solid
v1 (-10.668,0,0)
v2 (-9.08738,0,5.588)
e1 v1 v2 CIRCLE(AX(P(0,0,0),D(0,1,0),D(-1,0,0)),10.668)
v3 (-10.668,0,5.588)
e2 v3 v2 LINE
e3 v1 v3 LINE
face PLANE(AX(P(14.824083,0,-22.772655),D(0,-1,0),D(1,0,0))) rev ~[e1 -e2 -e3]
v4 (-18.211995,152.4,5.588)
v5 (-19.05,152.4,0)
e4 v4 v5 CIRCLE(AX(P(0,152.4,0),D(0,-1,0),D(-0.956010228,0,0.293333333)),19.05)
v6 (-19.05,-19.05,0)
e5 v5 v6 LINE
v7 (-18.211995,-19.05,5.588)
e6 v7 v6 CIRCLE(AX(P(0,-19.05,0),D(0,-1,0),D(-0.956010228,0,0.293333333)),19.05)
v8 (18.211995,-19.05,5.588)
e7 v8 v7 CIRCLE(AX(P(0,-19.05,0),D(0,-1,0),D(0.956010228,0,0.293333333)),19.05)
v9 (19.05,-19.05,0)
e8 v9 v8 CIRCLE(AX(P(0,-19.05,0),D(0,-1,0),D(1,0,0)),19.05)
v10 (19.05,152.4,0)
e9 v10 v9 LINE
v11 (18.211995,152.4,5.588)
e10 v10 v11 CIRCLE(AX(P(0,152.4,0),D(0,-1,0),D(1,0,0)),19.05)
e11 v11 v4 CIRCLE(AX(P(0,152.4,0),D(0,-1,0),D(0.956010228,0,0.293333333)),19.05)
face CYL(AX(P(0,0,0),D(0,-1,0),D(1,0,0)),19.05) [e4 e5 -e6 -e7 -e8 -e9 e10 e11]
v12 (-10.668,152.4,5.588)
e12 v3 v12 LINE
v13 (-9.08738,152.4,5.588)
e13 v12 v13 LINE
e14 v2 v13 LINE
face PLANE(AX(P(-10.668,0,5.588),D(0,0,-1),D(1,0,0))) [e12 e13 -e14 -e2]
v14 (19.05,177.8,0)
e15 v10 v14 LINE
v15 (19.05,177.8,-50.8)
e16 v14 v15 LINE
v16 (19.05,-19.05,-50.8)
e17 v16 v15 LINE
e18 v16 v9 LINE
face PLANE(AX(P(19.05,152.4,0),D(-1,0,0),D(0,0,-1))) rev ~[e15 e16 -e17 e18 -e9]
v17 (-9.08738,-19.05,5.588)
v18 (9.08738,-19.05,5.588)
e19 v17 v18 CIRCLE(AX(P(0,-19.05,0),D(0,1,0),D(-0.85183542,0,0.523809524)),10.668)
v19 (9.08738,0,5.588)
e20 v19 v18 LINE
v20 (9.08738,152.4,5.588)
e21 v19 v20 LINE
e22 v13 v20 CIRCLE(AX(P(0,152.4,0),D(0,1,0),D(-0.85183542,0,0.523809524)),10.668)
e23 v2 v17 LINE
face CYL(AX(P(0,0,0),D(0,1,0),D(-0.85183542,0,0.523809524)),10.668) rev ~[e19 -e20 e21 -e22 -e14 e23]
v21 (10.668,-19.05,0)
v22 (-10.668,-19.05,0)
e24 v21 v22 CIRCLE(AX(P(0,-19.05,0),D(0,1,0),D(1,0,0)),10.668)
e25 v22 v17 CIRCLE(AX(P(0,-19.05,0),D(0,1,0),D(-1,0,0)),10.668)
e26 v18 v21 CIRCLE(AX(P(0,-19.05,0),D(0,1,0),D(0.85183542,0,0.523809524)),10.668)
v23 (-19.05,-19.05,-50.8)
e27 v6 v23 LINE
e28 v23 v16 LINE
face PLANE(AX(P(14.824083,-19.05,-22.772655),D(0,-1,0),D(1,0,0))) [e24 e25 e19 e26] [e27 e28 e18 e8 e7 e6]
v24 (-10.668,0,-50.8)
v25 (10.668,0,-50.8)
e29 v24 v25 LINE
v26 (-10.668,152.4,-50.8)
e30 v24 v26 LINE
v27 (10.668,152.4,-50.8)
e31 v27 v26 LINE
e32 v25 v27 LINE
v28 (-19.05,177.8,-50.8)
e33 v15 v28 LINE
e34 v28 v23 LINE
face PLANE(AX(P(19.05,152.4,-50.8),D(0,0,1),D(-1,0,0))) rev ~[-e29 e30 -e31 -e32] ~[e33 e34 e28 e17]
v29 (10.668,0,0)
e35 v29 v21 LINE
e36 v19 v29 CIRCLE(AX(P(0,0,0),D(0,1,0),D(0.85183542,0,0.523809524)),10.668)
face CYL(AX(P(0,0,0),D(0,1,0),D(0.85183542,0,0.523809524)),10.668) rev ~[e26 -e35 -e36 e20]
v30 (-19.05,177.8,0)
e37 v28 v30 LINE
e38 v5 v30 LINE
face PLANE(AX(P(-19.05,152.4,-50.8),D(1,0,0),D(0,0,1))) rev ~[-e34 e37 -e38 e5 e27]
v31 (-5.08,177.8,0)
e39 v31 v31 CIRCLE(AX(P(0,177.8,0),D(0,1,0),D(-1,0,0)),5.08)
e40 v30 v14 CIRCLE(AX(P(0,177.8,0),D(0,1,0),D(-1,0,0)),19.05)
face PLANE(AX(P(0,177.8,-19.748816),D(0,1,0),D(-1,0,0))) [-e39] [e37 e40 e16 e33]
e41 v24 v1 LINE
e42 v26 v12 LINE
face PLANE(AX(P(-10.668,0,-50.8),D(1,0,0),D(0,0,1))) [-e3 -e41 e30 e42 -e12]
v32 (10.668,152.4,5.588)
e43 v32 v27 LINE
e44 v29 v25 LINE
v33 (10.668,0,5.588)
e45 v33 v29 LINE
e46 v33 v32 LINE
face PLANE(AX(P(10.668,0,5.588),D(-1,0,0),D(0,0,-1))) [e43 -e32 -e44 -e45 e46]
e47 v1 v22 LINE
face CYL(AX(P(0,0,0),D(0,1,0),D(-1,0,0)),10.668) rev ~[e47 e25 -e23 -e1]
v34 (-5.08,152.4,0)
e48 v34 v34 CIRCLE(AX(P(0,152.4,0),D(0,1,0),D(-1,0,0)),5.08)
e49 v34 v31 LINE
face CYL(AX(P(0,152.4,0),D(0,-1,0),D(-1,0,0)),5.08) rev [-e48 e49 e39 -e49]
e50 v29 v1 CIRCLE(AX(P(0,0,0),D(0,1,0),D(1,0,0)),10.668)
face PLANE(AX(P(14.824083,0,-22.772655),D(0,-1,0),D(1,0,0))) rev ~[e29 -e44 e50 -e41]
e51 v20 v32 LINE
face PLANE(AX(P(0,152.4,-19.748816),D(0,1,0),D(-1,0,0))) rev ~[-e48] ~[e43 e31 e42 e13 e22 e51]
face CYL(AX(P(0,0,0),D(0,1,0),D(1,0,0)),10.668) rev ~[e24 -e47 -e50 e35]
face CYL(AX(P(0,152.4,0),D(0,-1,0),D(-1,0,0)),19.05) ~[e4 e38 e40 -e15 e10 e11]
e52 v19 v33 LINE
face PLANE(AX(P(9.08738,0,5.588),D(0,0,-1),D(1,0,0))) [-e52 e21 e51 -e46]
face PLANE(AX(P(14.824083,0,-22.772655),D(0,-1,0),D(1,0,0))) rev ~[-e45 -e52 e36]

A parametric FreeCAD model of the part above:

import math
import FreeCAD as App
import Part
import Sketcher
Q = App.Units.Quantity

doc = App.newDocument("Part")
body = doc.addObject("PartDesign::Body", "Body")

sketch1 = body.newObject("Sketcher::SketchObject", "Sketch")
sketch1.AttachmentSupport = (doc.getObject("XZ_Plane"), [""])
sketch1.MapMode = "FlatFace"
sketch1.addGeometry(Part.LineSegment(App.Vector(19, -51, 0), App.Vector(19, 0, 0)), False)
sketch1.addGeometry(Part.ArcOfCircle(Part.Circle(App.Vector(0, 0, 0), App.Vector(0, 0, 1), 19), math.radians(0), math.radians(17.06)), False)
sketch1.addGeometry(Part.ArcOfCircle(Part.Circle(App.Vector(0, 0, 0), App.Vector(0, 0, 1), 19), math.radians(17), math.radians(163)), False)
sketch1.addGeometry(Part.ArcOfCircle(Part.Circle(App.Vector(0, 0, 0), App.Vector(0, 0, 1), 19), math.radians(162.94), math.radians(180)), False)
sketch1.addGeometry(Part.LineSegment(App.Vector(-19, 0, 0), App.Vector(-19, -51, 0)), False)
sketch1.addGeometry(Part.LineSegment(App.Vector(-19, -51, 0), App.Vector(19, -51, 0)), False)
sketch1.addGeometry(Part.ArcOfCircle(Part.Circle(App.Vector(0, 0, 0), App.Vector(0, 0, 1), 11), math.radians(32), math.radians(148)), False)
sketch1.addGeometry(Part.ArcOfCircle(Part.Circle(App.Vector(0, 0, 0), App.Vector(0, 0, 1), 11), math.radians(0), math.radians(32)), False)
sketch1.addGeometry(Part.ArcOfCircle(Part.Circle(App.Vector(0, 0, 0), App.Vector(0, 0, 1), 11), math.radians(180), math.radians(360)), False)
sketch1.addGeometry(Part.ArcOfCircle(Part.Circle(App.Vector(0, 0, 0), App.Vector(0, 0, 1), 11), math.radians(148), math.radians(180)), False)
sketch1.addConstraint(Sketcher.Constraint("Tangent", 0, 2, 1, 1))
sketch1.addConstraint(Sketcher.Constraint("Tangent", 1, 2, 2, 1))
sketch1.addConstraint(Sketcher.Constraint("Tangent", 2, 2, 3, 1))
sketch1.addConstraint(Sketcher.Constraint("Tangent", 3, 2, 4, 1))
sketch1.addConstraint(Sketcher.Constraint("Coincident", 4, 2, 5, 1))
sketch1.addConstraint(Sketcher.Constraint("Coincident", 5, 2, 0, 1))
sketch1.addConstraint(Sketcher.Constraint("Tangent", 6, 1, 7, 2))
sketch1.addConstraint(Sketcher.Constraint("Tangent", 7, 1, 8, 2))
sketch1.addConstraint(Sketcher.Constraint("Tangent", 8, 1, 9, 2))
sketch1.addConstraint(Sketcher.Constraint("Tangent", 9, 1, 6, 2))
sketch1.addConstraint(Sketcher.Constraint("Vertical", 0))
sketch1.addConstraint(Sketcher.Constraint("Vertical", 4))
sketch1.addConstraint(Sketcher.Constraint("Horizontal", 5))
sketch1.addConstraint(Sketcher.Constraint("Coincident", 1, 3, -1, 1))
sketch1.addConstraint(Sketcher.Constraint("Coincident", 3, 3, -1, 1))
sketch1.addConstraint(Sketcher.Constraint("Coincident", 6, 3, -1, 1))
sketch1.addConstraint(Sketcher.Constraint("Equal", 6, 7))
sketch1.addConstraint(Sketcher.Constraint("PointOnObject", 7, 1, -1))
sketch1.addConstraint(Sketcher.Constraint("PointOnObject", 8, 1, -1))
sketch1.addConstraint(Sketcher.Constraint("Horizontal", 1, 2, 2, 2))
sketch1.addConstraint(Sketcher.Constraint("Horizontal", 2, 2, 6, 1))
sketch1.addConstraint(Sketcher.Constraint("Horizontal", 6, 1, 9, 1))
sketch1.addConstraint(Sketcher.Constraint("DistanceY", 0, 1, 0, 2, Q("2 in")))
sketch1.addConstraint(Sketcher.Constraint("Radius", 1, Q("0.75 in")))
sketch1.addConstraint(Sketcher.Constraint("Radius", 6, Q("0.42 in")))
sketch1.addConstraint(Sketcher.Constraint("DistanceY", -1, 1, 1, 2, Q("0.22 in")))
pad1 = body.newObject("PartDesign::Pad", "Pad")
pad1.Profile = sketch1
pad1.Length = Q("0.75 in")

sketch2 = body.newObject("Sketcher::SketchObject", "Sketch001")
sketch2.AttachmentSupport = (doc.getObject("XZ_Plane"), [""])
sketch2.MapMode = "FlatFace"
sketch2.addGeometry(Part.LineSegment(App.Vector(19.1, -50.8, 0), App.Vector(19.1, 0, 0)), False)
sketch2.addGeometry(Part.ArcOfCircle(Part.Circle(App.Vector(0, 0, 0), App.Vector(0, 0, 1), 19), math.radians(0), math.radians(17.06)), False)
sketch2.addGeometry(Part.ArcOfCircle(Part.Circle(App.Vector(0, 0, 0), App.Vector(0, 0, 1), 19.1), math.radians(17), math.radians(163)), False)
sketch2.addGeometry(Part.ArcOfCircle(Part.Circle(App.Vector(0, 0, 0), App.Vector(0, 0, 1), 19), math.radians(162.94), math.radians(180)), False)
sketch2.addGeometry(Part.LineSegment(App.Vector(-19.1, 0, 0), App.Vector(-19.1, -50.8, 0)), False)
sketch2.addGeometry(Part.LineSegment(App.Vector(-19.1, -50.8, 0), App.Vector(-10.7, -50.8, 0)), False)
sketch2.addGeometry(Part.LineSegment(App.Vector(-10.7, -50.8, 0), App.Vector(-10.7, 5.6, 0)), False)
sketch2.addGeometry(Part.LineSegment(App.Vector(-10.7, 5.6, 0), App.Vector(-9.1, 5.6, 0)), False)
sketch2.addGeometry(Part.ArcOfCircle(Part.Circle(App.Vector(0, 0, 0), App.Vector(0, 0, 1), 10.7), math.radians(32), math.radians(148)), False)
sketch2.addGeometry(Part.LineSegment(App.Vector(9.1, 5.6, 0), App.Vector(10.7, 5.6, 0)), False)
sketch2.addGeometry(Part.LineSegment(App.Vector(10.7, 5.6, 0), App.Vector(10.7, -50.8, 0)), False)
sketch2.addGeometry(Part.LineSegment(App.Vector(10.7, -50.8, 0), App.Vector(19.1, -50.8, 0)), False)
sketch2.addConstraint(Sketcher.Constraint("Tangent", 0, 2, 1, 1))
sketch2.addConstraint(Sketcher.Constraint("Tangent", 1, 2, 2, 1))
sketch2.addConstraint(Sketcher.Constraint("Tangent", 2, 2, 3, 1))
sketch2.addConstraint(Sketcher.Constraint("Tangent", 3, 2, 4, 1))
sketch2.addConstraint(Sketcher.Constraint("Coincident", 4, 2, 5, 1))
sketch2.addConstraint(Sketcher.Constraint("Coincident", 5, 2, 6, 1))
sketch2.addConstraint(Sketcher.Constraint("Coincident", 6, 2, 7, 1))
sketch2.addConstraint(Sketcher.Constraint("Coincident", 7, 2, 8, 2))
sketch2.addConstraint(Sketcher.Constraint("Coincident", 8, 1, 9, 1))
sketch2.addConstraint(Sketcher.Constraint("Coincident", 9, 2, 10, 1))
sketch2.addConstraint(Sketcher.Constraint("Coincident", 10, 2, 11, 1))
sketch2.addConstraint(Sketcher.Constraint("Coincident", 11, 2, 0, 1))
sketch2.addConstraint(Sketcher.Constraint("Vertical", 0))
sketch2.addConstraint(Sketcher.Constraint("Vertical", 4))
sketch2.addConstraint(Sketcher.Constraint("Horizontal", 5))
sketch2.addConstraint(Sketcher.Constraint("Vertical", 6))
sketch2.addConstraint(Sketcher.Constraint("Horizontal", 7))
sketch2.addConstraint(Sketcher.Constraint("Horizontal", 9))
sketch2.addConstraint(Sketcher.Constraint("Vertical", 10))
sketch2.addConstraint(Sketcher.Constraint("Horizontal", 11))
sketch2.addConstraint(Sketcher.Constraint("Coincident", 1, 3, -1, 1))
sketch2.addConstraint(Sketcher.Constraint("Coincident", 3, 3, -1, 1))
sketch2.addConstraint(Sketcher.Constraint("Coincident", 8, 3, -1, 1))
sketch2.addConstraint(Sketcher.Constraint("Symmetric", 6, 2, 9, 2, -2))
sketch2.addConstraint(Sketcher.Constraint("Horizontal", 1, 2, 2, 2))
sketch2.addConstraint(Sketcher.Constraint("Horizontal", 2, 2, 6, 2))
sketch2.addConstraint(Sketcher.Constraint("Horizontal", 5, 2, 10, 2))
sketch2.addConstraint(Sketcher.Constraint("DistanceY", 0, 1, 0, 2, Q("2 in")))
sketch2.addConstraint(Sketcher.Constraint("Radius", 1, Q("0.75 in")))
sketch2.addConstraint(Sketcher.Constraint("Radius", 8, Q("0.42 in")))
sketch2.addConstraint(Sketcher.Constraint("DistanceX", 5, 1, 5, 2, Q("0.33 in")))
sketch2.addConstraint(Sketcher.Constraint("DistanceY", 6, 1, 6, 2, Q("2.22 in")))
pad2 = body.newObject("PartDesign::Pad", "Pad001")
pad2.Profile = sketch2
pad2.Length = Q("6 in")
pad2.Reversed = True

sketch3 = body.newObject("Sketcher::SketchObject", "Sketch002")
sketch3.AttachmentSupport = (doc.getObject("XZ_Plane"), [""])
sketch3.MapMode = "FlatFace"
sketch3.AttachmentOffset = App.Placement(App.Vector(0, 0, -6 * 25.4), App.Rotation())
sketch3.addGeometry(Part.ArcOfCircle(Part.Circle(App.Vector(0, 0, 0), App.Vector(0, 0, 1), 19), math.radians(0), math.radians(180)), False)
sketch3.addGeometry(Part.LineSegment(App.Vector(19, 0, 0), App.Vector(19, -51, 0)), False)
sketch3.addGeometry(Part.LineSegment(App.Vector(19, -51, 0), App.Vector(-19, -51, 0)), False)
sketch3.addGeometry(Part.LineSegment(App.Vector(-19, -51, 0), App.Vector(-19, 0, 0)), False)
sketch3.addGeometry(Part.Circle(App.Vector(0, 0, 0), App.Vector(0, 0, 1), 5), False)
sketch3.addConstraint(Sketcher.Constraint("Tangent", 0, 1, 1, 1))
sketch3.addConstraint(Sketcher.Constraint("Coincident", 1, 2, 2, 1))
sketch3.addConstraint(Sketcher.Constraint("Coincident", 2, 2, 3, 1))
sketch3.addConstraint(Sketcher.Constraint("Tangent", 3, 2, 0, 2))
sketch3.addConstraint(Sketcher.Constraint("Vertical", 1))
sketch3.addConstraint(Sketcher.Constraint("Horizontal", 2))
sketch3.addConstraint(Sketcher.Constraint("Vertical", 3))
sketch3.addConstraint(Sketcher.Constraint("Coincident", 0, 3, -1, 1))
sketch3.addConstraint(Sketcher.Constraint("Coincident", 4, 3, -1, 1))
sketch3.addConstraint(Sketcher.Constraint("Diameter", 4, Q("0.4 in")))
sketch3.addConstraint(Sketcher.Constraint("DistanceY", 1, 2, 1, 1, Q("2 in")))
sketch3.addConstraint(Sketcher.Constraint("Radius", 0, Q("0.75 in")))
pad3 = body.newObject("PartDesign::Pad", "Pad002")
pad3.Profile = sketch3
pad3.Length = Q("1 in")
pad3.Reversed = True

doc.recompute()
